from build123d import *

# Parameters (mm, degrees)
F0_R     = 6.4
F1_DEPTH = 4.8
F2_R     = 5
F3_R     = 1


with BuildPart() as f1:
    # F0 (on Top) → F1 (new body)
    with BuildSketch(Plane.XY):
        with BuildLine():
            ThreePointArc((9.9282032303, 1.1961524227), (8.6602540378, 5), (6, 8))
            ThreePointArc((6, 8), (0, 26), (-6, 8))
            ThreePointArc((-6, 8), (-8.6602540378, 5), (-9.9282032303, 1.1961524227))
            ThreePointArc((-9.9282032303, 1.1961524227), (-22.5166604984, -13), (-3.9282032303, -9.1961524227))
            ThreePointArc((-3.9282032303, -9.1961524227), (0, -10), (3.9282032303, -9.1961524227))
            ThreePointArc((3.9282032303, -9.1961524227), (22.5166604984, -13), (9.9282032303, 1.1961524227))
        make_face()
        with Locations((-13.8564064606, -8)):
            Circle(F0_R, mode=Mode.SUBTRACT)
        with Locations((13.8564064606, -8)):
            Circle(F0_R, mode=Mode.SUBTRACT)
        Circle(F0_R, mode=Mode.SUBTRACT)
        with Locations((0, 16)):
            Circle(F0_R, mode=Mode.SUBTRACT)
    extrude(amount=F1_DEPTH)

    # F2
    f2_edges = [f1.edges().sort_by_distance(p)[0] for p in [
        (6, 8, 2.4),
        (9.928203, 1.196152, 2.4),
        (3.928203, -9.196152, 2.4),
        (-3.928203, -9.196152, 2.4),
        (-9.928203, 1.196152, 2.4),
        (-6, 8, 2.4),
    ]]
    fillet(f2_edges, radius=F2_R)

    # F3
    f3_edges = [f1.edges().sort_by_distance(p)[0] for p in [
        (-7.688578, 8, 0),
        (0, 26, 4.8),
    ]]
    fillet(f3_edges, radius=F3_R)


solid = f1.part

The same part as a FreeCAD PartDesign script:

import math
import FreeCAD as App
import Part
import Sketcher

V = App.Vector


def edges_at(feature, points):
    """Names of the edges that pass closest to the given points."""
    edges = feature.Shape.Edges
    near = lambda p: min(range(len(edges)), key=lambda i: edges[i].distToShape(Part.Vertex(*p))[0])
    return sorted({f"Edge{near(p) + 1}" for p in points})

doc = App.newDocument("Part")
body = doc.addObject("PartDesign::Body", "Body")

sketch1 = body.newObject("Sketcher::SketchObject", "Sketch")
sketch1.AttachmentSupport = (doc.getObject("XY_Plane"), [""])
sketch1.MapMode = "FlatFace"
sketch1.addGeometry([
    Part.ArcOfCircle(Part.Circle(V(0, 0, 0), V(0, 0, 1), 10), math.radians(7), math.radians(53)),
    Part.ArcOfCircle(Part.Circle(V(0, 16, 0), V(0, 0, 1), 10), math.radians(-53), math.radians(233)),
    Part.ArcOfCircle(Part.Circle(V(0, 0, 0), V(0, 0, 1), 10), math.radians(127), math.radians(173)),
    Part.ArcOfCircle(Part.Circle(V(-14, -8, 0), V(0, 0, 1), 10), math.radians(67), math.radians(353)),
    Part.ArcOfCircle(Part.Circle(V(0, 0, 0), V(0, 0, 1), 10), math.radians(-113), math.radians(-67)),
    Part.ArcOfCircle(Part.Circle(V(14, -8, 0), V(0, 0, 1), 10), math.radians(-173), math.radians(113)),
    Part.Circle(V(-14, -8, 0), V(0, 0, 1), 6),
    Part.Circle(V(14, -8, 0), V(0, 0, 1), 6),
    Part.Circle(V(0, 0, 0), V(0, 0, 1), 6),
    Part.Circle(V(0, 16, 0), V(0, 0, 1), 6),
], False)
sketch1.addConstraint([
    Sketcher.Constraint("Coincident", 0, 2, 1, 1),
    Sketcher.Constraint("Coincident", 1, 2, 2, 1),
    Sketcher.Constraint("Coincident", 2, 2, 3, 1),
    Sketcher.Constraint("Coincident", 3, 2, 4, 1),
    Sketcher.Constraint("Coincident", 4, 2, 5, 1),
    Sketcher.Constraint("Coincident", 5, 2, 0, 1),
    Sketcher.Constraint("Coincident", 0, 3, -1, 1),
    Sketcher.Constraint("Coincident", 2, 3, -1, 1),
    Sketcher.Constraint("Coincident", 4, 3, -1, 1),
    Sketcher.Constraint("Coincident", 8, 3, -1, 1),
    Sketcher.Constraint("Coincident", 6, 3, 3, 3),
    Sketcher.Constraint("Coincident", 7, 3, 5, 3),
    Sketcher.Constraint("Coincident", 9, 3, 1, 3),
    Sketcher.Constraint("Equal", 0, 1),
    Sketcher.Constraint("Equal", 1, 2),
    Sketcher.Constraint("Equal", 2, 3),
    Sketcher.Constraint("Equal", 3, 4),
    Sketcher.Constraint("Equal", 4, 5),
    Sketcher.Constraint("Equal", 6, 7),
    Sketcher.Constraint("Equal", 7, 8),
    Sketcher.Constraint("Equal", 8, 9),
    Sketcher.Constraint("Symmetric", 3, 3, 5, 3, -2),
    Sketcher.Constraint("PointOnObject", 1, 3, -2),
    Sketcher.Constraint("Radius", 0, 10.0),
    Sketcher.Constraint("Diameter", 6, 12.8),
    Sketcher.Constraint("DistanceY", -1, 1, 1, 3, 16.0),
    Sketcher.Constraint("DistanceY", 3, 3, -1, 1, 8.0),
    Sketcher.Constraint("DistanceX", 3, 3, -1, 1, 13.856406),
])
pad1 = body.newObject("PartDesign::Pad", "Pad")
pad1.Profile = sketch1
pad1.Length = 4.8
doc.recompute()

fillet = body.newObject("PartDesign::Fillet", "Fillet")
fillet.Base = (pad1, edges_at(pad1, [
    (6, 8, 2.4),
    (9.928, 1.196, 2.4),
    (3.928, -9.196, 2.4),
    (-3.928, -9.196, 2.4),
    (-9.928, 1.196, 2.4),
    (-6, 8, 2.4),
]))
fillet.Radius = 5
doc.recompute()

fillet2 = body.newObject("PartDesign::Fillet", "Fillet001")
fillet2.Base = (fillet, edges_at(fillet, [(-7.689, 8, 0), (0, 26, 4.8)]))
fillet2.Radius = 1

doc.recompute()
